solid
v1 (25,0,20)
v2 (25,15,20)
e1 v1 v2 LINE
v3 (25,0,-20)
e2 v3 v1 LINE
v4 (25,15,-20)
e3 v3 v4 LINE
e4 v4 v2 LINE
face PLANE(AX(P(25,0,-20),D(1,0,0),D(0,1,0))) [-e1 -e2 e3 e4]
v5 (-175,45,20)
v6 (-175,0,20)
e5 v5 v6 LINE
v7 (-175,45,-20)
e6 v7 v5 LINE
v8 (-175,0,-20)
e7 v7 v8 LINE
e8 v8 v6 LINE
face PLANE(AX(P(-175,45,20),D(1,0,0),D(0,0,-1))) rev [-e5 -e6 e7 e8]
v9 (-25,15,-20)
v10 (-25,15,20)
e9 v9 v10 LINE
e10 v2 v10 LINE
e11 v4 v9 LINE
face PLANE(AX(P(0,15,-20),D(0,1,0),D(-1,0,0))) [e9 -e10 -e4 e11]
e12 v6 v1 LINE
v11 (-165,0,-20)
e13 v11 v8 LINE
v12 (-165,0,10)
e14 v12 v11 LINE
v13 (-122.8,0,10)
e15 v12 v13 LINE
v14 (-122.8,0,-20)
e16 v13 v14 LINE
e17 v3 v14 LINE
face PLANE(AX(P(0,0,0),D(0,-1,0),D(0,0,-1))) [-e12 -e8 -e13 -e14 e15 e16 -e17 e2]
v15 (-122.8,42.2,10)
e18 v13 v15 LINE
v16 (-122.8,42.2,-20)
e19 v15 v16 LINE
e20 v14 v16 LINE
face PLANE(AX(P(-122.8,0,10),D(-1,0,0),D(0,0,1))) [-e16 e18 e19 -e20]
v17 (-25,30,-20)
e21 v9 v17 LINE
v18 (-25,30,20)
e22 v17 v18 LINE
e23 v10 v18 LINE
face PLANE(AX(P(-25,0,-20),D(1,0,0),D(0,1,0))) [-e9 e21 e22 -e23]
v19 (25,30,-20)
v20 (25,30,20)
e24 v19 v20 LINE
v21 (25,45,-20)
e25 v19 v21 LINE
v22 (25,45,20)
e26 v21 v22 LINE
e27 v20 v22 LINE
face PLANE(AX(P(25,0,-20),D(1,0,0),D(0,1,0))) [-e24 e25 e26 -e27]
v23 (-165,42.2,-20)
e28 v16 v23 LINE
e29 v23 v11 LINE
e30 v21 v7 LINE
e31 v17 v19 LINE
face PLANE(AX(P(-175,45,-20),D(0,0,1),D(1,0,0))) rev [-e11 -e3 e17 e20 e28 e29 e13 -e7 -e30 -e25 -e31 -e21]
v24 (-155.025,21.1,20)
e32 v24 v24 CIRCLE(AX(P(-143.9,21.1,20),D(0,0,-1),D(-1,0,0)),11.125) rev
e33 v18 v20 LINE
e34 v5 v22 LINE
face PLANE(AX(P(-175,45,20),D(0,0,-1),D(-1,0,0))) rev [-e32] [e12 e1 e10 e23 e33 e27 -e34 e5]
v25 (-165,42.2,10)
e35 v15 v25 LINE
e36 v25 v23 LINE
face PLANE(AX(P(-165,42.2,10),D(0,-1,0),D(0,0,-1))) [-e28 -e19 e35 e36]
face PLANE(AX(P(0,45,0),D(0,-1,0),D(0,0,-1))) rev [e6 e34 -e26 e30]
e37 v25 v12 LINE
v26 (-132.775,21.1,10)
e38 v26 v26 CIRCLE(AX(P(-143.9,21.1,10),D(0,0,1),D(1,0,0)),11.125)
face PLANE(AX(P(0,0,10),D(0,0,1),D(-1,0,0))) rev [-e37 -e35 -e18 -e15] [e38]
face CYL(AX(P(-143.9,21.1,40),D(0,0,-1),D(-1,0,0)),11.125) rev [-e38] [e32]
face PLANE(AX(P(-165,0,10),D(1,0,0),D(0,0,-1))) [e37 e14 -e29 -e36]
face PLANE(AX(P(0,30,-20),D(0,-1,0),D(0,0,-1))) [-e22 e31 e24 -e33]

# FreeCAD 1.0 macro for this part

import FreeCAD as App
import Part
import Sketcher
Q = App.Units.Quantity

doc = App.newDocument("Part")
body = doc.addObject("PartDesign::Body", "Body")

sketch1 = doc.addObject("Sketcher::SketchObject", "Sketch")
body.addObject(sketch1)
sketch1.AttachmentSupport = (doc.XZ_Plane, [""])
sketch1.MapMode = "FlatFace"
sketch1.addGeometry(Part.LineSegment(App.Vector(-175, -20, 0), App.Vector(-175, 20, 0)), False)
sketch1.addGeometry(Part.LineSegment(App.Vector(-175, 20, 0), App.Vector(175, 20, 0)), False)
sketch1.addGeometry(Part.LineSegment(App.Vector(175, 20, 0), App.Vector(175, -20, 0)), False)
sketch1.addGeometry(Part.LineSegment(App.Vector(175, -20, 0), App.Vector(-175, -20, 0)), False)
sketch1.addConstraint(Sketcher.Constraint("Coincident", 0, 2, 1, 1))
sketch1.addConstraint(Sketcher.Constraint("Coincident", 1, 2, 2, 1))
sketch1.addConstraint(Sketcher.Constraint("Coincident", 2, 2, 3, 1))
sketch1.addConstraint(Sketcher.Constraint("Coincident", 3, 2, 0, 1))
sketch1.addConstraint(Sketcher.Constraint("Vertical", 0))
sketch1.addConstraint(Sketcher.Constraint("Horizontal", 1))
sketch1.addConstraint(Sketcher.Constraint("Vertical", 2))
sketch1.addConstraint(Sketcher.Constraint("Horizontal", 3))
sketch1.addConstraint(Sketcher.Constraint("Symmetric", 0, 2, 2, 2, -1, 1))
sketch1.addConstraint(Sketcher.Constraint("DistanceX", 1, 1, 1, 2, Q("350 mm")))
sketch1.addConstraint(Sketcher.Constraint("DistanceY", 0, 1, 0, 2, Q("40 mm")))
pad1 = doc.addObject("PartDesign::Pad", "Pad")
body.addObject(pad1)
pad1.Profile = sketch1
pad1.Length = 45
pad1.Reversed = True

sketch2 = doc.addObject("Sketcher::SketchObject", "Sketch001")
body.addObject(sketch2)
sketch2.AttachmentSupport = (doc.XY_Plane, [""])
sketch2.MapMode = "FlatFace"
sketch2.AttachmentOffset = App.Placement(App.Vector(0, 0, -20), App.Rotation())
sketch2.addGeometry(Part.LineSegment(App.Vector(165, 42, 0), App.Vector(165, 0, 0)), False)
sketch2.addGeometry(Part.LineSegment(App.Vector(165, 0, 0), App.Vector(123, 0, 0)), False)
sketch2.addGeometry(Part.LineSegment(App.Vector(123, 0, 0), App.Vector(123, 42, 0)), False)
sketch2.addGeometry(Part.LineSegment(App.Vector(123, 42, 0), App.Vector(165, 42, 0)), False)
sketch2.addConstraint(Sketcher.Constraint("Coincident", 0, 2, 1, 1))
sketch2.addConstraint(Sketcher.Constraint("Coincident", 1, 2, 2, 1))
sketch2.addConstraint(Sketcher.Constraint("Coincident", 2, 2, 3, 1))
sketch2.addConstraint(Sketcher.Constraint("Coincident", 3, 2, 0, 1))
sketch2.addConstraint(Sketcher.Constraint("Vertical", 0))
sketch2.addConstraint(Sketcher.Constraint("Horizontal", 1))
sketch2.addConstraint(Sketcher.Constraint("Vertical", 2))
sketch2.addConstraint(Sketcher.Constraint("Horizontal", 3))
sketch2.addConstraint(Sketcher.Constraint("PointOnObject", 0, 2, -1))
sketch2.addConstraint(Sketcher.Constraint("Equal", 3, 0))
sketch2.addConstraint(Sketcher.Constraint("DistanceX", 1, 2, 1, 1, Q("42.2 mm")))
sketch2.addConstraint(Sketcher.Constraint("DistanceX", -1, 1, 0, 2, Q("165 mm")))
pocket1 = doc.addObject("PartDesign::Pocket", "Pocket")
body.addObject(pocket1)
pocket1.Profile = sketch2
pocket1.Length = 30
pocket1.Reversed = True

sketch3 = doc.addObject("Sketcher::SketchObject", "Sketch002")
body.addObject(sketch3)
sketch3.AttachmentSupport = (doc.XY_Plane, [""])
sketch3.MapMode = "FlatFace"
sketch3.AttachmentOffset = App.Placement(App.Vector(0, 0, 10), App.Rotation())
sketch3.addGeometry(Part.Circle(App.Vector(144, 21, 0), App.Vector(0, 0, 1), 11), False)
sketch3.addConstraint(Sketcher.Constraint("Diameter", 0, Q("22.25 mm")))
sketch3.addConstraint(Sketcher.Constraint("DistanceX", -1, 1, 0, 3, Q("143.9 mm")))
sketch3.addConstraint(Sketcher.Constraint("DistanceY", -1, 1, 0, 3, Q("21.1 mm")))
pocket2 = doc.addObject("PartDesign::Pocket", "Pocket001")
body.addObject(pocket2)
pocket2.Profile = sketch3
pocket2.Length = 30
pocket2.Reversed = True
doc.recompute()

mirrored = doc.addObject("PartDesign::Mirrored", "Mirrored")
body.addObject(mirrored)
mirrored.Originals = [pocket1, pocket2]
mirrored.MirrorPlane = (doc.YZ_Plane, [""])
body.Tip = mirrored

sketch4 = doc.addObject("Sketcher::SketchObject", "Sketch003")
body.addObject(sketch4)
sketch4.AttachmentSupport = (doc.XY_Plane, [""])
sketch4.MapMode = "FlatFace"
sketch4.AttachmentOffset = App.Placement(App.Vector(0, 0, 20), App.Rotation())
sketch4.addGeometry(Part.LineSegment(App.Vector(25, 15, 0), App.Vector(25, 0, 0)), False)
sketch4.addGeometry(Part.LineSegment(App.Vector(25, 0, 0), App.Vector(175, 0, 0)), False)
sketch4.addGeometry(Part.LineSegment(App.Vector(175, 0, 0), App.Vector(175, 45, 0)), False)
sketch4.addGeometry(Part.LineSegment(App.Vector(175, 45, 0), App.Vector(25, 45, 0)), False)
sketch4.addGeometry(Part.LineSegment(App.Vector(25, 45, 0), App.Vector(25, 30, 0)), False)
sketch4.addGeometry(Part.LineSegment(App.Vector(25, 30, 0), App.Vector(-25, 30, 0)), False)
sketch4.addGeometry(Part.LineSegment(App.Vector(-25, 30, 0), App.Vector(-25, 15, 0)), False)
sketch4.addGeometry(Part.LineSegment(App.Vector(-25, 15, 0), App.Vector(25, 15, 0)), False)
sketch4.addGeometry(Part.Circle(App.Vector(144, 21, 0), App.Vector(0, 0, 1), 11), False)
sketch4.addConstraint(Sketcher.Constraint("Coincident", 0, 2, 1, 1))
sketch4.addConstraint(Sketcher.Constraint("Coincident", 1, 2, 2, 1))
sketch4.addConstraint(Sketcher.Constraint("Coincident", 2, 2, 3, 1))
sketch4.addConstraint(Sketcher.Constraint("Coincident", 3, 2, 4, 1))
sketch4.addConstraint(Sketcher.Constraint("Coincident", 4, 2, 5, 1))
sketch4.addConstraint(Sketcher.Constraint("Coincident", 5, 2, 6, 1))
sketch4.addConstraint(Sketcher.Constraint("Coincident", 6, 2, 7, 1))
sketch4.addConstraint(Sketcher.Constraint("Coincident", 7, 2, 0, 1))
sketch4.addConstraint(Sketcher.Constraint("Vertical", 0))
sketch4.addConstraint(Sketcher.Constraint("Horizontal", 1))
sketch4.addConstraint(Sketcher.Constraint("Vertical", 2))
sketch4.addConstraint(Sketcher.Constraint("Horizontal", 3))
sketch4.addConstraint(Sketcher.Constraint("Vertical", 4))
sketch4.addConstraint(Sketcher.Constraint("Horizontal", 5))
sketch4.addConstraint(Sketcher.Constraint("Vertical", 6))
sketch4.addConstraint(Sketcher.Constraint("Horizontal", 7))
sketch4.addConstraint(Sketcher.Constraint("PointOnObject", 0, 2, -1))
sketch4.addConstraint(Sketcher.Constraint("Vertical", 0, 2, 3, 2))
sketch4.addConstraint(Sketcher.Constraint("Equal", 0, 4))
sketch4.addConstraint(Sketcher.Constraint("Equal", 4, 6))
sketch4.addConstraint(Sketcher.Constraint("Diameter", 8, Q("22.25 mm")))
sketch4.addConstraint(Sketcher.Constraint("DistanceX", 1, 1, 1, 2, Q("150 mm")))
sketch4.addConstraint(Sketcher.Constraint("DistanceX", 5, 2, 5, 1, Q("50 mm")))
sketch4.addConstraint(Sketcher.Constraint("DistanceY", 0, 2, 0, 1, Q("15 mm")))
sketch4.addConstraint(Sketcher.Constraint("DistanceX", -1, 1, 0, 2, Q("25 mm")))
sketch4.addConstraint(Sketcher.Constraint("DistanceX", -1, 1, 8, 3, Q("143.9 mm")))
sketch4.addConstraint(Sketcher.Constraint("DistanceY", -1, 1, 8, 3, Q("21.1 mm")))
pocket3 = doc.addObject("PartDesign::Pocket", "Pocket002")
body.addObject(pocket3)
pocket3.Profile = sketch4
pocket3.Type = "ThroughAll"

doc.recompute()
